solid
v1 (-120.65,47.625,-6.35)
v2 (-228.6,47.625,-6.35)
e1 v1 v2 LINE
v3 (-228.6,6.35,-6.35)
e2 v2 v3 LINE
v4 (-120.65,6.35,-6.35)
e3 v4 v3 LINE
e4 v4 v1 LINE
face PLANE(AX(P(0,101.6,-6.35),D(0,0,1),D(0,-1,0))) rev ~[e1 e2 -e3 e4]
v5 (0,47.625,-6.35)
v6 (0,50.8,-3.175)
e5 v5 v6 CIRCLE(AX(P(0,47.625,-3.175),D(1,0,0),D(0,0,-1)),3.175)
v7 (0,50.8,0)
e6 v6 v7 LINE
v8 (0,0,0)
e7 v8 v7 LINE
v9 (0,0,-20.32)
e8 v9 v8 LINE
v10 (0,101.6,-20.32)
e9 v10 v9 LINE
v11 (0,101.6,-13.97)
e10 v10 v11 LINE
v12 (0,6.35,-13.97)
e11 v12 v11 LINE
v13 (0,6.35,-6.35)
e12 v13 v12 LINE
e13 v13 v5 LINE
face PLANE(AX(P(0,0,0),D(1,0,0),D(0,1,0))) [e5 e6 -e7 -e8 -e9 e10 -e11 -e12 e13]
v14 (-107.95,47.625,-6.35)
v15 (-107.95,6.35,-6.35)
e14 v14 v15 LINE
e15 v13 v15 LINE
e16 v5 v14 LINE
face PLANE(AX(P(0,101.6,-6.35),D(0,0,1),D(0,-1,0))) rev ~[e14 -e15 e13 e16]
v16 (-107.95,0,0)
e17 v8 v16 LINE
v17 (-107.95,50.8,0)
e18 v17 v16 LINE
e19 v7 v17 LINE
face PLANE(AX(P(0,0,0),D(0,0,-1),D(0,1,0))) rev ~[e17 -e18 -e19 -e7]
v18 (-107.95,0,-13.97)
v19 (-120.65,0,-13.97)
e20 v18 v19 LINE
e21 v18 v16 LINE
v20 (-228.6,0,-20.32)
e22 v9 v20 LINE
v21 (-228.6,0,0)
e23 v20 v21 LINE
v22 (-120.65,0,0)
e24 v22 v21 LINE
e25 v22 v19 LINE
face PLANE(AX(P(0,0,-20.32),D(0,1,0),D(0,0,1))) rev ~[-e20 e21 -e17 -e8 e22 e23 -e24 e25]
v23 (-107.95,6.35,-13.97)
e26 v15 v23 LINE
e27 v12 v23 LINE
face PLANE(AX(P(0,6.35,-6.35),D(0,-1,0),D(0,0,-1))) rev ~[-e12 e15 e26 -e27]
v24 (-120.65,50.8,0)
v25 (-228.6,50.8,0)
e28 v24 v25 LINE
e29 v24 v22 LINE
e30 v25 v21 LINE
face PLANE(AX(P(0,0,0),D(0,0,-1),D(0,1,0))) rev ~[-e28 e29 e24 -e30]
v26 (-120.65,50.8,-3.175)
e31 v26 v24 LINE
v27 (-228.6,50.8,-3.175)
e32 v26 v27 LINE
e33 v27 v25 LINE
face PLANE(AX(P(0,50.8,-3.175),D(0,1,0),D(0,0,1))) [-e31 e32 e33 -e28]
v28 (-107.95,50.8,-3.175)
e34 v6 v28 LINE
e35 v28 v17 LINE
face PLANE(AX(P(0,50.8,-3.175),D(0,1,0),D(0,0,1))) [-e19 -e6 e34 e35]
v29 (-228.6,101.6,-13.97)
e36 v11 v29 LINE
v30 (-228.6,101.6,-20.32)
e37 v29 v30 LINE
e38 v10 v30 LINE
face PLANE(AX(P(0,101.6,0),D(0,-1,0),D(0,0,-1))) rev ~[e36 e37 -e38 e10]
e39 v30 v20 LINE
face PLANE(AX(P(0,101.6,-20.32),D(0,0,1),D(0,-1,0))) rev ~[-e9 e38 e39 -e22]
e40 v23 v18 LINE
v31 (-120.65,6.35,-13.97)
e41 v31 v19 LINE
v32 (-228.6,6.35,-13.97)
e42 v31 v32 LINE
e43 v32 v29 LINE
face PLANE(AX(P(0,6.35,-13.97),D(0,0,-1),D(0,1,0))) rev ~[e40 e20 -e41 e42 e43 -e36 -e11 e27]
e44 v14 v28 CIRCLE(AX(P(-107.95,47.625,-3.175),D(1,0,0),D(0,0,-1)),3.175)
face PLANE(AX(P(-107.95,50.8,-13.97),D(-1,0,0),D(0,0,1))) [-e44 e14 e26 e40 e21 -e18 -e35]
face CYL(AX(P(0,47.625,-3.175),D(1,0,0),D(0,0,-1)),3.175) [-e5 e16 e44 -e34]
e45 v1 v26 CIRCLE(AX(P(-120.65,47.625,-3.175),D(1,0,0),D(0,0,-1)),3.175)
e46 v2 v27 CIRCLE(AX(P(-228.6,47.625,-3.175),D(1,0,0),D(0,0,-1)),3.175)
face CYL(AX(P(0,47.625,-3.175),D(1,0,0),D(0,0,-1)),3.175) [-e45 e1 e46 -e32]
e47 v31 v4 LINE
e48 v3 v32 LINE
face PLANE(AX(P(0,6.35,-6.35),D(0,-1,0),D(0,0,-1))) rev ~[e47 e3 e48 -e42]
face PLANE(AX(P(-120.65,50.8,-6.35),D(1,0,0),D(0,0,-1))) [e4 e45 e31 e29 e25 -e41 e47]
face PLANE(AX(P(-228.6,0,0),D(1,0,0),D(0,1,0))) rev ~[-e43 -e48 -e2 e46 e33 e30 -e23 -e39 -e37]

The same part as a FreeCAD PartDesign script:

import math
import FreeCAD as App
import Part
import Sketcher

V = App.Vector
Q = App.Units.Quantity

doc = App.newDocument("Part")
body = doc.addObject("PartDesign::Body", "Body")

# Sketch on YZ plane
sketch1 = doc.addObject("Sketcher::SketchObject", "Sketch")
body.addObject(sketch1)
sketch1.AttachmentSupport = (doc.YZ_Plane, [""])
sketch1.MapMode = "FlatFace"
sketch1.addGeometry(Part.LineSegment(V(0, 0, 0), V(0, -20, 0)), False)
sketch1.addGeometry(Part.LineSegment(V(0, -20, 0), V(102, -20, 0)), False)
sketch1.addGeometry(Part.LineSegment(V(102, -20, 0), V(102, 0, 0)), False)
sketch1.addGeometry(Part.LineSegment(V(102, 0, 0), V(0, 0, 0)), False)
sketch1.addConstraint(Sketcher.Constraint("Coincident", 0, 2, 1, 1))
sketch1.addConstraint(Sketcher.Constraint("Coincident", 1, 2, 2, 1))
sketch1.addConstraint(Sketcher.Constraint("Coincident", 2, 2, 3, 1))
sketch1.addConstraint(Sketcher.Constraint("Coincident", 3, 2, 0, 1))
sketch1.addConstraint(Sketcher.Constraint("Vertical", 0))
sketch1.addConstraint(Sketcher.Constraint("Horizontal", 1))
sketch1.addConstraint(Sketcher.Constraint("Vertical", 2))
sketch1.addConstraint(Sketcher.Constraint("Horizontal", 3))
sketch1.addConstraint(Sketcher.Constraint("Coincident", 3, 2, -1, 1))
sketch1.addConstraint(Sketcher.Constraint("DistanceX", 1, 1, 1, 2, Q("4 in")))
sketch1.addConstraint(Sketcher.Constraint("DistanceY", 0, 2, 0, 1, Q("0.8 in")))
pad1 = doc.addObject("PartDesign::Pad", "Pad")
body.addObject(pad1)
pad1.Profile = sketch1
pad1.Length = Q("9 in")
pad1.Reversed = True

# Sketch on YZ plane
sketch2 = doc.addObject("Sketcher::SketchObject", "Sketch001")
body.addObject(sketch2)
sketch2.AttachmentSupport = (doc.YZ_Plane, [""])
sketch2.MapMode = "FlatFace"
sketch2.addGeometry(Part.LineSegment(V(102, -14, 0), V(102, -6, 0)), False)
sketch2.addGeometry(Part.LineSegment(V(102, -6, 0), V(6, -6, 0)), False)
sketch2.addGeometry(Part.LineSegment(V(6, -6, 0), V(6, -14, 0)), False)
sketch2.addGeometry(Part.LineSegment(V(6, -14, 0), V(102, -14, 0)), False)
sketch2.addConstraint(Sketcher.Constraint("Coincident", 0, 2, 1, 1))
sketch2.addConstraint(Sketcher.Constraint("Coincident", 1, 2, 2, 1))
sketch2.addConstraint(Sketcher.Constraint("Coincident", 2, 2, 3, 1))
sketch2.addConstraint(Sketcher.Constraint("Coincident", 3, 2, 0, 1))
sketch2.addConstraint(Sketcher.Constraint("Vertical", 0))
sketch2.addConstraint(Sketcher.Constraint("Horizontal", 1))
sketch2.addConstraint(Sketcher.Constraint("Vertical", 2))
sketch2.addConstraint(Sketcher.Constraint("Horizontal", 3))
sketch2.addConstraint(Sketcher.Constraint("DistanceY", 0, 1, 0, 2, Q("0.3 in")))
sketch2.addConstraint(Sketcher.Constraint("DistanceX", 1, 2, 1, 1, Q("3.75 in")))
sketch2.addConstraint(Sketcher.Constraint("DistanceY", 0, 2, -1, 1, Q("0.25 in")))
sketch2.addConstraint(Sketcher.Constraint("DistanceX", -1, 1, 1, 2, Q("0.25 in")))
pocket1 = doc.addObject("PartDesign::Pocket", "Pocket")
body.addObject(pocket1)
pocket1.Profile = sketch2
pocket1.Length = Q("9 in")

# Sketch on YZ plane
sketch3 = doc.addObject("Sketcher::SketchObject", "Sketch002")
body.addObject(sketch3)
sketch3.AttachmentSupport = (doc.YZ_Plane, [""])
sketch3.MapMode = "FlatFace"
sketch3.addGeometry(Part.ArcOfCircle(Part.Circle(V(47.6, -3.2, 0), V(0, 0, 1), 3.2), math.radians(-90), math.radians(0)), False)
sketch3.addGeometry(Part.LineSegment(V(47.6, -6.3, 0), V(101.6, -6.3, 0)), False)
sketch3.addGeometry(Part.LineSegment(V(101.6, -6.3, 0), V(101.6, 0, 0)), False)
sketch3.addGeometry(Part.LineSegment(V(101.6, 0, 0), V(50.8, 0, 0)), False)
sketch3.addGeometry(Part.LineSegment(V(50.8, 0, 0), V(50.8, -3.2, 0)), False)
sketch3.addConstraint(Sketcher.Constraint("Tangent", 0, 1, 1, 1))
sketch3.addConstraint(Sketcher.Constraint("Coincident", 1, 2, 2, 1))
sketch3.addConstraint(Sketcher.Constraint("Coincident", 2, 2, 3, 1))
sketch3.addConstraint(Sketcher.Constraint("Coincident", 3, 2, 4, 1))
sketch3.addConstraint(Sketcher.Constraint("Tangent", 4, 2, 0, 2))
sketch3.addConstraint(Sketcher.Constraint("Horizontal", 1))
sketch3.addConstraint(Sketcher.Constraint("Vertical", 2))
sketch3.addConstraint(Sketcher.Constraint("Horizontal", 3))
sketch3.addConstraint(Sketcher.Constraint("Vertical", 4))
sketch3.addConstraint(Sketcher.Constraint("PointOnObject", 2, 2, -1))
sketch3.addConstraint(Sketcher.Constraint("DistanceX", 3, 2, 3, 1, Q("2 in")))
sketch3.addConstraint(Sketcher.Constraint("DistanceX", -1, 1, 3, 2, Q("2 in")))
sketch3.addConstraint(Sketcher.Constraint("Radius", 0, Q("0.125 in")))
sketch3.addConstraint(Sketcher.Constraint("DistanceY", 4, 2, 4, 1, Q("0.125 in")))
pocket2 = doc.addObject("PartDesign::Pocket", "Pocket001")
body.addObject(pocket2)
pocket2.Profile = sketch3
pocket2.Length = Q("9 in")

# Sketch on XZ plane
sketch4 = doc.addObject("Sketcher::SketchObject", "Sketch003")
body.addObject(sketch4)
sketch4.AttachmentSupport = (doc.XZ_Plane, [""])
sketch4.MapMode = "FlatFace"
sketch4.AttachmentOffset = App.Placement(V(0, 0, -2 * 25.4), App.Rotation())
sketch4.addGeometry(Part.LineSegment(V(-108, -14, 0), V(-121, -14, 0)), False)
sketch4.addGeometry(Part.LineSegment(V(-121, -14, 0), V(-121, 0, 0)), False)
sketch4.addGeometry(Part.LineSegment(V(-121, 0, 0), V(-108, 0, 0)), False)
sketch4.addGeometry(Part.LineSegment(V(-108, 0, 0), V(-108, -14, 0)), False)
sketch4.addConstraint(Sketcher.Constraint("Coincident", 0, 2, 1, 1))
sketch4.addConstraint(Sketcher.Constraint("Coincident", 1, 2, 2, 1))
sketch4.addConstraint(Sketcher.Constraint("Coincident", 2, 2, 3, 1))
sketch4.addConstraint(Sketcher.Constraint("Coincident", 3, 2, 0, 1))
sketch4.addConstraint(Sketcher.Constraint("Horizontal", 0))
sketch4.addConstraint(Sketcher.Constraint("Vertical", 1))
sketch4.addConstraint(Sketcher.Constraint("Horizontal", 2))
sketch4.addConstraint(Sketcher.Constraint("Vertical", 3))
sketch4.addConstraint(Sketcher.Constraint("PointOnObject", 1, 2, -1))
sketch4.addConstraint(Sketcher.Constraint("DistanceX", 0, 2, 0, 1, Q("0.5 in")))
sketch4.addConstraint(Sketcher.Constraint("DistanceX", 2, 2, -1, 1, Q("4.25 in")))
sketch4.addConstraint(Sketcher.Constraint("DistanceY", 1, 1, 1, 2, Q("0.55 in")))
pocket3 = doc.addObject("PartDesign::Pocket", "Pocket002")
body.addObject(pocket3)
pocket3.Profile = sketch4
pocket3.Length = Q("9 in")
pocket3.Reversed = True

doc.recompute()
